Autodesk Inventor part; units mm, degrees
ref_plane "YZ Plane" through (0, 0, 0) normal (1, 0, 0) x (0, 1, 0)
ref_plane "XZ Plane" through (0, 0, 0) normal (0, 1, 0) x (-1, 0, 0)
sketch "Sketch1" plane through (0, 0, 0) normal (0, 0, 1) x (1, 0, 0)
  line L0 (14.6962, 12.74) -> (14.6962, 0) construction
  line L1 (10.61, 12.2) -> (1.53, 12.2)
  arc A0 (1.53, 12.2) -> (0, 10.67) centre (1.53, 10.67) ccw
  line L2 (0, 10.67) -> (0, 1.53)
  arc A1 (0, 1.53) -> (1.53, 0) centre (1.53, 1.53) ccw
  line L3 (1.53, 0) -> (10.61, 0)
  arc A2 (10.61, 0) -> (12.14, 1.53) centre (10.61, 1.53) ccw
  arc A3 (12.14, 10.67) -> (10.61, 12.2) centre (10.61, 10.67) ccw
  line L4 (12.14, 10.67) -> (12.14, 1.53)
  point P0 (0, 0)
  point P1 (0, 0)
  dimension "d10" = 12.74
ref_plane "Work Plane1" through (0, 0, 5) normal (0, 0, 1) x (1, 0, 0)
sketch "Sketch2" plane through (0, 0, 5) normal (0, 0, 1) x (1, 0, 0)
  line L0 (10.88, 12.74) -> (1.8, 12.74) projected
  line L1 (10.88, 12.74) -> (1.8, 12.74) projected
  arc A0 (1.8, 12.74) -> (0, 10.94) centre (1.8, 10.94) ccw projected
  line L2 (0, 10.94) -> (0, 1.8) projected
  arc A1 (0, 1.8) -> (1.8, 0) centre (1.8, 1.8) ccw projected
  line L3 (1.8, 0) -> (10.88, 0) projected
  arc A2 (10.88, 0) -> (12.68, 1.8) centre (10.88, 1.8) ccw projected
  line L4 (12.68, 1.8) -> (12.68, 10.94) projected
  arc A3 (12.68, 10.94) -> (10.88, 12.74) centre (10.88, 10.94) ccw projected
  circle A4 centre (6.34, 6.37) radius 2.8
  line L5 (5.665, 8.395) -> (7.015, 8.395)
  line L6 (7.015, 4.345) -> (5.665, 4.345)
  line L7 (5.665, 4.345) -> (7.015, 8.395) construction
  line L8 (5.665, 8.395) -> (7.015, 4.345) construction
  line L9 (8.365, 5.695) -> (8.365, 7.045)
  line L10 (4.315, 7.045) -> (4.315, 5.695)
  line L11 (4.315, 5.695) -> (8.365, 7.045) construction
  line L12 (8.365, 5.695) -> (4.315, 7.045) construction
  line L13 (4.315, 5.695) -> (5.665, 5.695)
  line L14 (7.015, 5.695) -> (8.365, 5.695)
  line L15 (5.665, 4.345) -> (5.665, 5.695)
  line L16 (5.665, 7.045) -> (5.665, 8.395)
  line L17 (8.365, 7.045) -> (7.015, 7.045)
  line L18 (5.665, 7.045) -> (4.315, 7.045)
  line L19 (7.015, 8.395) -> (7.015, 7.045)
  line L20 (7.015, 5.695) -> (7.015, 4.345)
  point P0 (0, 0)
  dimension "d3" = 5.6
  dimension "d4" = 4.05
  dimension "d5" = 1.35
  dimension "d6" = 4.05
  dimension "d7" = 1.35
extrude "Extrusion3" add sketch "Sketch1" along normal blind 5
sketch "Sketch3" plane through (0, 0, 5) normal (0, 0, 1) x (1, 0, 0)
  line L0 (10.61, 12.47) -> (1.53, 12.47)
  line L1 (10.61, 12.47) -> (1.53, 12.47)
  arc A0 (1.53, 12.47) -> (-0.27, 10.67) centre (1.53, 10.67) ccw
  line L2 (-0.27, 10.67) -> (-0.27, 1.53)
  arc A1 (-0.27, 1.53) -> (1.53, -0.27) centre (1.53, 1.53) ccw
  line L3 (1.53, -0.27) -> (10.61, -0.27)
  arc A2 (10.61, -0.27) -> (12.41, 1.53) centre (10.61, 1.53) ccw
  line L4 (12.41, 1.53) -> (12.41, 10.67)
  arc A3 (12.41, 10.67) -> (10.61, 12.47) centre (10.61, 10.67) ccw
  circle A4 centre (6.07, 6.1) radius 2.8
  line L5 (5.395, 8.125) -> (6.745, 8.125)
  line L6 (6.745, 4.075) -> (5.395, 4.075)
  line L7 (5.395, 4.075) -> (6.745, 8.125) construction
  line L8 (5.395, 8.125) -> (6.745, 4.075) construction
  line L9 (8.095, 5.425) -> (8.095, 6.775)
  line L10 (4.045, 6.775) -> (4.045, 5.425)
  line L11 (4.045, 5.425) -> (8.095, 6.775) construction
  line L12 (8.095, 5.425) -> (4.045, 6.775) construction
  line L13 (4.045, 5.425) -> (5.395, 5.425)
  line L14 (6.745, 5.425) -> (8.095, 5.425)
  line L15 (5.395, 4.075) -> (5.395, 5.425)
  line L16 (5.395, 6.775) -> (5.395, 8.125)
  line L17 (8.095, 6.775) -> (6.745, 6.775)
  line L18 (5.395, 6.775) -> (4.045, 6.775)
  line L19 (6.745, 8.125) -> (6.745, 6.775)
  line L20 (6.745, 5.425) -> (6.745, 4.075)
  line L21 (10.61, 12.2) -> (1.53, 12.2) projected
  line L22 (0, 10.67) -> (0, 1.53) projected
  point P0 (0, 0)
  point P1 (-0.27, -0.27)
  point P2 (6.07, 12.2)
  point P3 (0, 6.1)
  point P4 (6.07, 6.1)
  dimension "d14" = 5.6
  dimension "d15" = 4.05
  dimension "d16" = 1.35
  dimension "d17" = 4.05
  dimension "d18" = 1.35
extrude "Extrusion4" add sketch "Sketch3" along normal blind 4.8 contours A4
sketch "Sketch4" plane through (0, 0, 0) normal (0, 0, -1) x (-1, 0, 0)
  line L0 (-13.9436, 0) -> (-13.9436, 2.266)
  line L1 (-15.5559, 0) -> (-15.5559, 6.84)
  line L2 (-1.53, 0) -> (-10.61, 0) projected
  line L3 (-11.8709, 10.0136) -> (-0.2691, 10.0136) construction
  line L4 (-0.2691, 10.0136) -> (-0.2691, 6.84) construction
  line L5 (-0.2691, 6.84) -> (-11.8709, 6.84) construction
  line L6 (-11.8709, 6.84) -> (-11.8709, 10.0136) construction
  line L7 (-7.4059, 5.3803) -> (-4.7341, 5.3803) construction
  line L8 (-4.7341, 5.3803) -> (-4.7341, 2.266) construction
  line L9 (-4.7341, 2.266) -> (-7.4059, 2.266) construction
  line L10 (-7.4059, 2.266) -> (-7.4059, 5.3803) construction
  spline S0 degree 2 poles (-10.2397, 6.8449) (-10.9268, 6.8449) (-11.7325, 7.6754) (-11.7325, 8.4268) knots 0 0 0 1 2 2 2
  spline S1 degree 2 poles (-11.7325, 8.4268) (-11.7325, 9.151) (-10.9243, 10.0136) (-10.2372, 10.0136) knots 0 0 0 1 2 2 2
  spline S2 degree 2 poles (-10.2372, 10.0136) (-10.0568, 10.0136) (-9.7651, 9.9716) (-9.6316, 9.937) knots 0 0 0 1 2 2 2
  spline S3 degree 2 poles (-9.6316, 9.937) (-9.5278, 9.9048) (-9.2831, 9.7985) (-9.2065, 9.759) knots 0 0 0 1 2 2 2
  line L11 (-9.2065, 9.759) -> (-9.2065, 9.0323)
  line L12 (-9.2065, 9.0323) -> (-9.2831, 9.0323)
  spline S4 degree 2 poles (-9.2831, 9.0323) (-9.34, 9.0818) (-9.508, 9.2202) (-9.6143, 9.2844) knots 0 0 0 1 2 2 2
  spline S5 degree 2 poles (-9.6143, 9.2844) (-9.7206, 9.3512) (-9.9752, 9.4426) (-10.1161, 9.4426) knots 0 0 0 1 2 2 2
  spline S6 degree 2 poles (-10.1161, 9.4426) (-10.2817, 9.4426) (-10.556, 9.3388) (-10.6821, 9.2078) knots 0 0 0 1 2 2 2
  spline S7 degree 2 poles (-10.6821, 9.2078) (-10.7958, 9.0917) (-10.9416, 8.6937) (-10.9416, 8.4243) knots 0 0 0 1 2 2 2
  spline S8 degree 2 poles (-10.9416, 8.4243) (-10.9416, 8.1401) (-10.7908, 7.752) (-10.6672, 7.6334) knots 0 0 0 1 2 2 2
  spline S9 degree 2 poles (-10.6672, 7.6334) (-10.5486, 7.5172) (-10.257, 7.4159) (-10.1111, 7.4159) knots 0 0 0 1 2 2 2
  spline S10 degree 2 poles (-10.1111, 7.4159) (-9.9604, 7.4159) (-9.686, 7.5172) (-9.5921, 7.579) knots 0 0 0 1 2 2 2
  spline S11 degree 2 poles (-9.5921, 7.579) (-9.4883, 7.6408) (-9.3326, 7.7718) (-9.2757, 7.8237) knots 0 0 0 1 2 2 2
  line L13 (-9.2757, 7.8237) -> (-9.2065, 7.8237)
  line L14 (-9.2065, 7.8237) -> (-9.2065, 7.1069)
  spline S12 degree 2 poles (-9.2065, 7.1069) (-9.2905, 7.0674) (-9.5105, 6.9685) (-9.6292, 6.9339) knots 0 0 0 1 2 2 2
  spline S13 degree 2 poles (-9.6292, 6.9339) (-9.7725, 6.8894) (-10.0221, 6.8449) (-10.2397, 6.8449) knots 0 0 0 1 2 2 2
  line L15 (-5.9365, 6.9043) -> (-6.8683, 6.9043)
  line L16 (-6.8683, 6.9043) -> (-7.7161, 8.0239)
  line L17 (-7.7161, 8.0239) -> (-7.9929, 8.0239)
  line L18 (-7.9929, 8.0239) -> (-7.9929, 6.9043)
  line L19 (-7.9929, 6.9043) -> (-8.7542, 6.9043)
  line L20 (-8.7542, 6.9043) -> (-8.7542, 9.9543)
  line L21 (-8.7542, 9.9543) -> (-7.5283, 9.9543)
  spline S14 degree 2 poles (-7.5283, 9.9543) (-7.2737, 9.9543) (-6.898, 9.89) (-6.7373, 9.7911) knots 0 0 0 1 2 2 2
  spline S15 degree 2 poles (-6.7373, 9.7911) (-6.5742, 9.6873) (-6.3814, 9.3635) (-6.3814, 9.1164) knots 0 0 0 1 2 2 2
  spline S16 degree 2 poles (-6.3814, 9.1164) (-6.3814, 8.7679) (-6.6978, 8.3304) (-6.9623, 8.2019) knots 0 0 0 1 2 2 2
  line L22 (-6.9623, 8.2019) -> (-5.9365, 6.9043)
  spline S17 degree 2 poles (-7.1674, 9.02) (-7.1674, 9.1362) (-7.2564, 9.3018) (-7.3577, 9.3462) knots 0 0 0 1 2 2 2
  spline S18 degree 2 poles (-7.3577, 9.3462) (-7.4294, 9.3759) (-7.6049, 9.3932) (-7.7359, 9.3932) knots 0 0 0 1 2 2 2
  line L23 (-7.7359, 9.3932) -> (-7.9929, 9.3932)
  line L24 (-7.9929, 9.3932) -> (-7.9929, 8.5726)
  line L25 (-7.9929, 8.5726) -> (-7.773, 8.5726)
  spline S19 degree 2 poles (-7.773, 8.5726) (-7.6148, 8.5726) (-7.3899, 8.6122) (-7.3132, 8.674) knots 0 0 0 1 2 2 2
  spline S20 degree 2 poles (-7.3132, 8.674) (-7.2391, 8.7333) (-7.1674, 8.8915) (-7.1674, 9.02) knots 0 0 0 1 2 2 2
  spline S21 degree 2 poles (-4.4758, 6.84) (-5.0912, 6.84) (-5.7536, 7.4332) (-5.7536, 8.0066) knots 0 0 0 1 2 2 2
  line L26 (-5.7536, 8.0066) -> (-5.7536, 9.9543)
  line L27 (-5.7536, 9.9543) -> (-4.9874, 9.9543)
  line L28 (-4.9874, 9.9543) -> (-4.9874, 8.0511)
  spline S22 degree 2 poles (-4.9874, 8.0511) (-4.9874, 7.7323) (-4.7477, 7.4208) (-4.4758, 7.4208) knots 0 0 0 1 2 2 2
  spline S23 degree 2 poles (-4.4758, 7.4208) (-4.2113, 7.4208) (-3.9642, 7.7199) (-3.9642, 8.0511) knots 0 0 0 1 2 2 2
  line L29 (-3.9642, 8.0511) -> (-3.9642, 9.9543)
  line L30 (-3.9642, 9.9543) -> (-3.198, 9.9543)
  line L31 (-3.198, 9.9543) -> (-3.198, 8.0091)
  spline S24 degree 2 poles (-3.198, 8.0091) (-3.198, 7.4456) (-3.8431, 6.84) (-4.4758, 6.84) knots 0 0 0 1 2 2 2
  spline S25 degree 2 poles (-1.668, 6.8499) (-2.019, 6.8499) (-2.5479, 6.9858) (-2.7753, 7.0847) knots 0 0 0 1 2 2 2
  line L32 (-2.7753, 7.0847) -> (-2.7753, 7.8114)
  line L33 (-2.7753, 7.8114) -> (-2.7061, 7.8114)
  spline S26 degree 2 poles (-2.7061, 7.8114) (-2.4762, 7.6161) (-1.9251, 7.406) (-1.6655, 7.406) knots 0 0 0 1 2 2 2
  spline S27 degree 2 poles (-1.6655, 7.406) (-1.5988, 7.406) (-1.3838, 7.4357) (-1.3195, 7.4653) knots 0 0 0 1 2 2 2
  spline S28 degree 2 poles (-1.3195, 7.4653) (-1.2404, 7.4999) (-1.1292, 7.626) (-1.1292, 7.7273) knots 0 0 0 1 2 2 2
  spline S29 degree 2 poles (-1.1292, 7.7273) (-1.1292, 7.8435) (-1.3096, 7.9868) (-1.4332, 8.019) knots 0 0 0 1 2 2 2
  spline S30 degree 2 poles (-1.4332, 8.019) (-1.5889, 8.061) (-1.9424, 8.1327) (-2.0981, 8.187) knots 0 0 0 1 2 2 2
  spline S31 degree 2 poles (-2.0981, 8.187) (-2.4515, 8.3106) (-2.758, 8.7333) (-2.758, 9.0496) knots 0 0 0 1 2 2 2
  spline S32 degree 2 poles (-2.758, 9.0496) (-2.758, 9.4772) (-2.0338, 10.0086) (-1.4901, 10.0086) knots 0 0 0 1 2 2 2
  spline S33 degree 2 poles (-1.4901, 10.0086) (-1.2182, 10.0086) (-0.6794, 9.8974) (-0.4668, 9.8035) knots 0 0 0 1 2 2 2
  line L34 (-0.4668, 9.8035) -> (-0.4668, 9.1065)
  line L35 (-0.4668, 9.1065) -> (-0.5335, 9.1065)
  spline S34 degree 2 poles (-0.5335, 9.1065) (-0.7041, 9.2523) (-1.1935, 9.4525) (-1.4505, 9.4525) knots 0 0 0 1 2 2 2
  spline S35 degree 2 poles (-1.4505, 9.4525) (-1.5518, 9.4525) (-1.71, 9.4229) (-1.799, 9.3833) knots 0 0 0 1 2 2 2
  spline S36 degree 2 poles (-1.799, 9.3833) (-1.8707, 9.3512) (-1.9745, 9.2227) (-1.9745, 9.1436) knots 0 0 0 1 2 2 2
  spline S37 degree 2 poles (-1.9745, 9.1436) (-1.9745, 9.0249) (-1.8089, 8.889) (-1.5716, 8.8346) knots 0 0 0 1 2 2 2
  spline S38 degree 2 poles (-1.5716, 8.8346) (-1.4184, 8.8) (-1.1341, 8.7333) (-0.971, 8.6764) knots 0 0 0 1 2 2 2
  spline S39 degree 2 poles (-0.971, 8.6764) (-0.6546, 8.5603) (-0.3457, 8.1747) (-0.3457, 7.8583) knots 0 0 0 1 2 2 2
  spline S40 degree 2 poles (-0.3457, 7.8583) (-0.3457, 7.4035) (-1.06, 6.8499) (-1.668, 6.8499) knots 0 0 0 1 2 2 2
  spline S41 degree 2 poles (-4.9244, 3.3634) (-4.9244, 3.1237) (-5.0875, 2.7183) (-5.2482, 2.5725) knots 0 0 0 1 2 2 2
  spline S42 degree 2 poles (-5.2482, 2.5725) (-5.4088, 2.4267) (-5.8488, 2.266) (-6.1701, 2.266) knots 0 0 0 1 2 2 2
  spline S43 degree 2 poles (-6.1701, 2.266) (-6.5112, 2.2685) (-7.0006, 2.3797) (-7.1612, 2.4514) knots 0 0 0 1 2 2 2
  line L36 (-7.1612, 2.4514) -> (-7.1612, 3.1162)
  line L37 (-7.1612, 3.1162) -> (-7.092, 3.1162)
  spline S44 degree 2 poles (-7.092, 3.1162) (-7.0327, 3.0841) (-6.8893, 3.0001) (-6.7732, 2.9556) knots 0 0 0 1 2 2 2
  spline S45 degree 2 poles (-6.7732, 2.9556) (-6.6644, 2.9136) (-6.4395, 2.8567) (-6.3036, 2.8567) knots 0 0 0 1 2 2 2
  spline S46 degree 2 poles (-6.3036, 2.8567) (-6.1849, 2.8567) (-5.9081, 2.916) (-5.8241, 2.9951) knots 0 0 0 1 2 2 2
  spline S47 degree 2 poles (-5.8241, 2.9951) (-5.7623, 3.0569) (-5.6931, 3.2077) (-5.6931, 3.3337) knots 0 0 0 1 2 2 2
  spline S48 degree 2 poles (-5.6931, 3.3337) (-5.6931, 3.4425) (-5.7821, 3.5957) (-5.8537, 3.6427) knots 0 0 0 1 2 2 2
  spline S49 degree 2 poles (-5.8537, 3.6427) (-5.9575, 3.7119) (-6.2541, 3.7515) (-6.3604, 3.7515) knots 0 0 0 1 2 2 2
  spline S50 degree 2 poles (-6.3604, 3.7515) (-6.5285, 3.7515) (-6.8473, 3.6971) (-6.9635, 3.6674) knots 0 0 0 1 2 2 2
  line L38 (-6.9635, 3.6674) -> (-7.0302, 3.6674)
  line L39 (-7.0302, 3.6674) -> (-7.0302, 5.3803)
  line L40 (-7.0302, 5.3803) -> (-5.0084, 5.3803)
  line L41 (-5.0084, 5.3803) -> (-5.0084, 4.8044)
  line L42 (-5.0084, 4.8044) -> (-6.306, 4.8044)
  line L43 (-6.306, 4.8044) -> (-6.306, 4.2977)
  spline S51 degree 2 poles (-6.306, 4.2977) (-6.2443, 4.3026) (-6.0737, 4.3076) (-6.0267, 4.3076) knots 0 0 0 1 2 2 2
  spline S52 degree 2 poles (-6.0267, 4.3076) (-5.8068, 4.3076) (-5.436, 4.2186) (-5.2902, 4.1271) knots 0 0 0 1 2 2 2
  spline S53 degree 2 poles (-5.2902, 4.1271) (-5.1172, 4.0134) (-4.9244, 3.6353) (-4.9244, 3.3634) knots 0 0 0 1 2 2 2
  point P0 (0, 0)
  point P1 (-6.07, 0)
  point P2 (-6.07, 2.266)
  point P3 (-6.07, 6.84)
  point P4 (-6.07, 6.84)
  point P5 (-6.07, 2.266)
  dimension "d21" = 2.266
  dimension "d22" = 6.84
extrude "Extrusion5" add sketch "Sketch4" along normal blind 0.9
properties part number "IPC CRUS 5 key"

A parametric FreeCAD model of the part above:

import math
import FreeCAD as App
import Part
import Sketcher
from FreeCAD import Vector
Q = App.Units.Quantity

doc = App.newDocument("Part")
body = doc.addObject("PartDesign::Body", "Body")

# Sketch on XY plane
sketch1 = doc.addObject("Sketcher::SketchObject", "Sketch")
body.addObject(sketch1)
sketch1.AttachmentSupport = (doc.XY_Plane, [""])
sketch1.MapMode = "FlatFace"
sketch1.addGeometry([
    Part.ArcOfCircle(Part.Circle(Vector(10.6, 10.7, 0), Vector(0, 0, 1), 1.5), math.radians(0), math.radians(90)),  # 0
    Part.LineSegment(Vector(10.6, 12.2, 0), Vector(1.5, 12.2, 0)),  # 1
    Part.ArcOfCircle(Part.Circle(Vector(1.5, 10.7, 0), Vector(0, 0, 1), 1.5), math.radians(90), math.radians(180)),  # 2
    Part.LineSegment(Vector(0, 10.7, 0), Vector(0, 1.5, 0)),  # 3
    Part.ArcOfCircle(Part.Circle(Vector(1.5, 1.5, 0), Vector(0, 0, 1), 1.5), math.radians(180), math.radians(270)),  # 4
    Part.LineSegment(Vector(1.5, 0, 0), Vector(10.6, 0, 0)),  # 5
    Part.ArcOfCircle(Part.Circle(Vector(10.6, 1.5, 0), Vector(0, 0, 1), 1.5), math.radians(-90), math.radians(0)),  # 6
    Part.LineSegment(Vector(12.1, 1.5, 0), Vector(12.1, 10.7, 0)),  # 7
], False)
sketch1.addConstraint([
    Sketcher.Constraint("Tangent", 0, 2, 1, 1),
    Sketcher.Constraint("Tangent", 1, 2, 2, 1),
    Sketcher.Constraint("Tangent", 2, 2, 3, 1),
    Sketcher.Constraint("Tangent", 3, 2, 4, 1),
    Sketcher.Constraint("Tangent", 4, 2, 5, 1),
    Sketcher.Constraint("Tangent", 5, 2, 6, 1),
    Sketcher.Constraint("Tangent", 6, 2, 7, 1),
    Sketcher.Constraint("Tangent", 7, 2, 0, 1),
    Sketcher.Constraint("Horizontal", 1),
    Sketcher.Constraint("Vertical", 3),
    Sketcher.Constraint("Horizontal", 5),
    Sketcher.Constraint("Vertical", 7),
    Sketcher.Constraint("Equal", 0, 2),
    Sketcher.Constraint("Equal", 2, 4),
    Sketcher.Constraint("Equal", 4, 6),
    Sketcher.Constraint("PointOnObject", 2, 2, -2),
    Sketcher.Constraint("PointOnObject", 4, 2, -1),
    Sketcher.Constraint("Radius", 0, Q("1.53 mm")),
    Sketcher.Constraint("DistanceX", 1, 2, 1, 1, Q("9.08 mm")),
    Sketcher.Constraint("DistanceY", 3, 2, 3, 1, Q("9.14 mm")),
])
pad1 = doc.addObject("PartDesign::Pad", "Pad")
body.addObject(pad1)
pad1.Profile = sketch1
pad1.Length = 5

# Sketch on XY plane
sketch2 = doc.addObject("Sketcher::SketchObject", "Sketch001")
body.addObject(sketch2)
sketch2.AttachmentSupport = (doc.XY_Plane, [""])
sketch2.MapMode = "FlatFace"
sketch2.AttachmentOffset = App.Placement(Vector(0, 0, 5), App.Rotation())
sketch2.addGeometry([
    Part.Circle(Vector(6.1, 6.1, 0), Vector(0, 0, 1), 2.8),  # 0
    Part.LineSegment(Vector(5.4, 6.8, 0), Vector(5.4, 8.1, 0)),  # 1
    Part.LineSegment(Vector(5.4, 8.1, 0), Vector(6.7, 8.1, 0)),  # 2
    Part.LineSegment(Vector(6.7, 8.1, 0), Vector(6.7, 6.8, 0)),  # 3
    Part.LineSegment(Vector(6.7, 6.8, 0), Vector(8.1, 6.8, 0)),  # 4
    Part.LineSegment(Vector(8.1, 6.8, 0), Vector(8.1, 5.4, 0)),  # 5
    Part.LineSegment(Vector(8.1, 5.4, 0), Vector(6.7, 5.4, 0)),  # 6
    Part.LineSegment(Vector(6.7, 5.4, 0), Vector(6.7, 4.1, 0)),  # 7
    Part.LineSegment(Vector(6.7, 4.1, 0), Vector(5.4, 4.1, 0)),  # 8
    Part.LineSegment(Vector(5.4, 4.1, 0), Vector(5.4, 5.4, 0)),  # 9
    Part.LineSegment(Vector(5.4, 5.4, 0), Vector(4, 5.4, 0)),  # 10
    Part.LineSegment(Vector(4, 5.4, 0), Vector(4, 6.8, 0)),  # 11
    Part.LineSegment(Vector(4, 6.8, 0), Vector(5.4, 6.8, 0)),  # 12
], False)
sketch2.addConstraint([
    Sketcher.Constraint("Coincident", 1, 2, 2, 1),
    Sketcher.Constraint("Coincident", 2, 2, 3, 1),
    Sketcher.Constraint("Coincident", 3, 2, 4, 1),
    Sketcher.Constraint("Coincident", 4, 2, 5, 1),
    Sketcher.Constraint("Coincident", 5, 2, 6, 1),
    Sketcher.Constraint("Coincident", 6, 2, 7, 1),
    Sketcher.Constraint("Coincident", 7, 2, 8, 1),
    Sketcher.Constraint("Coincident", 8, 2, 9, 1),
    Sketcher.Constraint("Coincident", 9, 2, 10, 1),
    Sketcher.Constraint("Coincident", 10, 2, 11, 1),
    Sketcher.Constraint("Coincident", 11, 2, 12, 1),
    Sketcher.Constraint("Coincident", 12, 2, 1, 1),
    Sketcher.Constraint("Vertical", 1),
    Sketcher.Constraint("Horizontal", 2),
    Sketcher.Constraint("Vertical", 3),
    Sketcher.Constraint("Horizontal", 4),
    Sketcher.Constraint("Vertical", 5),
    Sketcher.Constraint("Horizontal", 6),
    Sketcher.Constraint("Vertical", 7),
    Sketcher.Constraint("Horizontal", 8),
    Sketcher.Constraint("Vertical", 9),
    Sketcher.Constraint("Horizontal", 10),
    Sketcher.Constraint("Vertical", 11),
    Sketcher.Constraint("Horizontal", 12),
    Sketcher.Constraint("Horizontal", 6, 2, 9, 2),
    Sketcher.Constraint("Horizontal", 4, 2, 11, 2),
    Sketcher.Constraint("Vertical", 3, 2, 6, 2),
    Sketcher.Constraint("Vertical", 1, 2, 8, 2),
    Sketcher.Constraint("Equal", 2, 4),
    Sketcher.Constraint("Equal", 8, 10),
    Sketcher.Constraint("Equal", 12, 1),
    Sketcher.Constraint("Equal", 3, 5),
    Sketcher.Constraint("Equal", 5, 7),
    Sketcher.Constraint("Diameter", 0, Q("5.6 mm")),
    Sketcher.Constraint("DistanceX", 2, 1, 2, 2, Q("1.35 mm")),
    Sketcher.Constraint("DistanceY", -1, 1, 0, 3, Q("6.1 mm")),
    Sketcher.Constraint("DistanceX", -1, 1, 0, 3, Q("6.07 mm")),
    Sketcher.Constraint("DistanceX", -1, 1, 1, 2, Q("5.395 mm")),
    Sketcher.Constraint("DistanceY", -1, 1, 1, 2, Q("8.125 mm")),
])
pad2 = doc.addObject("PartDesign::Pad", "Pad001")
body.addObject(pad2)
pad2.Profile = sketch2
pad2.Length = 4.8

# Sketch on XY plane
sketch3 = doc.addObject("Sketcher::SketchObject", "Sketch002")
body.addObject(sketch3)
sketch3.AttachmentSupport = (doc.XY_Plane, [""])
sketch3.MapMode = "FlatFace"
sketch3.addGeometry([
    Part.BSplineCurve([Vector(10.2397, 6.8449, 0), Vector(10.9268, 6.8449, 0), Vector(11.7325, 7.6754, 0), Vector(11.7325, 8.4268, 0)], [3, 1, 3], [0, 1, 2], False, 2, [1, 1, 1, 1], False),  # 0
    Part.BSplineCurve([Vector(9.6292, 6.9339, 0), Vector(9.7725, 6.8894, 0), Vector(10.0221, 6.8449, 0), Vector(10.2397, 6.8449, 0)], [3, 1, 3], [0, 1, 2], False, 2, [1, 1, 1, 1], False),  # 1
    Part.BSplineCurve([Vector(9.2065, 7.1069, 0), Vector(9.2905, 7.0674, 0), Vector(9.5105, 6.9685, 0), Vector(9.6292, 6.9339, 0)], [3, 1, 3], [0, 1, 2], False, 2, [1, 1, 1, 1], False),  # 2
    Part.LineSegment(Vector(9.2065, 7.1069, 0), Vector(9.2065, 7.8237, 0)),  # 3
    Part.LineSegment(Vector(9.2065, 7.8237, 0), Vector(9.2757, 7.8237, 0)),  # 4
    Part.BSplineCurve([Vector(9.5921, 7.579, 0), Vector(9.4883, 7.6408, 0), Vector(9.3326, 7.7718, 0), Vector(9.2757, 7.8237, 0)], [3, 1, 3], [0, 1, 2], False, 2, [1, 1, 1, 1], False),  # 5
    Part.BSplineCurve([Vector(10.1111, 7.4159, 0), Vector(9.9604, 7.4159, 0), Vector(9.686, 7.5172, 0), Vector(9.5921, 7.579, 0)], [3, 1, 3], [0, 1, 2], False, 2, [1, 1, 1, 1], False),  # 6
    Part.BSplineCurve([Vector(10.6672, 7.6334, 0), Vector(10.5486, 7.5172, 0), Vector(10.257, 7.4159, 0), Vector(10.1111, 7.4159, 0)], [3, 1, 3], [0, 1, 2], False, 2, [1, 1, 1, 1], False),  # 7
    Part.BSplineCurve([Vector(10.9416, 8.4243, 0), Vector(10.9416, 8.1401, 0), Vector(10.7908, 7.752, 0), Vector(10.6672, 7.6334, 0)], [3, 1, 3], [0, 1, 2], False, 2, [1, 1, 1, 1], False),  # 8
    Part.BSplineCurve([Vector(10.6821, 9.2078, 0), Vector(10.7958, 9.0917, 0), Vector(10.9416, 8.6937, 0), Vector(10.9416, 8.4243, 0)], [3, 1, 3], [0, 1, 2], False, 2, [1, 1, 1, 1], False),  # 9
    Part.BSplineCurve([Vector(10.1161, 9.4426, 0), Vector(10.2817, 9.4426, 0), Vector(10.556, 9.3388, 0), Vector(10.6821, 9.2078, 0)], [3, 1, 3], [0, 1, 2], False, 2, [1, 1, 1, 1], False),  # 10
    Part.BSplineCurve([Vector(9.6143, 9.2844, 0), Vector(9.7206, 9.3512, 0), Vector(9.9752, 9.4426, 0), Vector(10.1161, 9.4426, 0)], [3, 1, 3], [0, 1, 2], False, 2, [1, 1, 1, 1], False),  # 11
    Part.BSplineCurve([Vector(9.2831, 9.0323, 0), Vector(9.34, 9.0818, 0), Vector(9.508, 9.2202, 0), Vector(9.6143, 9.2844, 0)], [3, 1, 3], [0, 1, 2], False, 2, [1, 1, 1, 1], False),  # 12
    Part.LineSegment(Vector(9.2831, 9.0323, 0), Vector(9.2065, 9.0323, 0)),  # 13
    Part.LineSegment(Vector(9.2065, 9.0323, 0), Vector(9.2065, 9.759, 0)),  # 14
    Part.BSplineCurve([Vector(9.6316, 9.937, 0), Vector(9.5278, 9.9048, 0), Vector(9.2831, 9.7985, 0), Vector(9.2065, 9.759, 0)], [3, 1, 3], [0, 1, 2], False, 2, [1, 1, 1, 1], False),  # 15
    Part.BSplineCurve([Vector(10.2372, 10.0136, 0), Vector(10.0568, 10.0136, 0), Vector(9.7651, 9.9716, 0), Vector(9.6316, 9.937, 0)], [3, 1, 3], [0, 1, 2], False, 2, [1, 1, 1, 1], False),  # 16
    Part.BSplineCurve([Vector(11.7325, 8.4268, 0), Vector(11.7325, 9.151, 0), Vector(10.9243, 10.0136, 0), Vector(10.2372, 10.0136, 0)], [3, 1, 3], [0, 1, 2], False, 2, [1, 1, 1, 1], False),  # 17
    Part.LineSegment(Vector(6.8683, 6.9043, 0), Vector(5.9365, 6.9043, 0)),  # 18
    Part.LineSegment(Vector(5.9365, 6.9043, 0), Vector(6.9623, 8.2019, 0)),  # 19
    Part.BSplineCurve([Vector(6.3814, 9.1164, 0), Vector(6.3814, 8.7679, 0), Vector(6.6978, 8.3304, 0), Vector(6.9623, 8.2019, 0)], [3, 1, 3], [0, 1, 2], False, 2, [1, 1, 1, 1], False),  # 20
    Part.BSplineCurve([Vector(6.7373, 9.7911, 0), Vector(6.5742, 9.6873, 0), Vector(6.3814, 9.3635, 0), Vector(6.3814, 9.1164, 0)], [3, 1, 3], [0, 1, 2], False, 2, [1, 1, 1, 1], False),  # 21
    Part.BSplineCurve([Vector(7.5283, 9.9543, 0), Vector(7.2737, 9.9543, 0), Vector(6.898, 9.89, 0), Vector(6.7373, 9.7911, 0)], [3, 1, 3], [0, 1, 2], False, 2, [1, 1, 1, 1], False),  # 22
    Part.LineSegment(Vector(7.5283, 9.9543, 0), Vector(8.7542, 9.9543, 0)),  # 23
    Part.LineSegment(Vector(8.7542, 9.9543, 0), Vector(8.7542, 6.9043, 0)),  # 24
    Part.LineSegment(Vector(8.7542, 6.9043, 0), Vector(7.9929, 6.9043, 0)),  # 25
    Part.LineSegment(Vector(7.9929, 6.9043, 0), Vector(7.9929, 8.0239, 0)),  # 26
    Part.LineSegment(Vector(7.9929, 8.0239, 0), Vector(7.7161, 8.0239, 0)),  # 27
    Part.LineSegment(Vector(7.7161, 8.0239, 0), Vector(6.8683, 6.9043, 0)),  # 28
    Part.BSplineCurve([Vector(7.1674, 9.02, 0), Vector(7.1674, 9.1362, 0), Vector(7.2564, 9.3018, 0), Vector(7.3577, 9.3462, 0)], [3, 1, 3], [0, 1, 2], False, 2, [1, 1, 1, 1], False),  # 29
    Part.BSplineCurve([Vector(7.3132, 8.674, 0), Vector(7.2391, 8.7333, 0), Vector(7.1674, 8.8915, 0), Vector(7.1674, 9.02, 0)], [3, 1, 3], [0, 1, 2], False, 2, [1, 1, 1, 1], False),  # 30
    Part.BSplineCurve([Vector(7.773, 8.5726, 0), Vector(7.6148, 8.5726, 0), Vector(7.3899, 8.6122, 0), Vector(7.3132, 8.674, 0)], [3, 1, 3], [0, 1, 2], False, 2, [1, 1, 1, 1], False),  # 31
    Part.LineSegment(Vector(7.773, 8.5726, 0), Vector(7.9929, 8.5726, 0)),  # 32
    Part.LineSegment(Vector(7.9929, 8.5726, 0), Vector(7.9929, 9.3932, 0)),  # 33
    Part.LineSegment(Vector(7.9929, 9.3932, 0), Vector(7.7359, 9.3932, 0)),  # 34
    Part.BSplineCurve([Vector(7.3577, 9.3462, 0), Vector(7.4294, 9.3759, 0), Vector(7.6049, 9.3932, 0), Vector(7.7359, 9.3932, 0)], [3, 1, 3], [0, 1, 2], False, 2, [1, 1, 1, 1], False),  # 35
    Part.BSplineCurve([Vector(4.4758, 6.84, 0), Vector(5.0912, 6.84, 0), Vector(5.7536, 7.4332, 0), Vector(5.7536, 8.0066, 0)], [3, 1, 3], [0, 1, 2], False, 2, [1, 1, 1, 1], False),  # 36
    Part.BSplineCurve([Vector(3.198, 8.0091, 0), Vector(3.198, 7.4456, 0), Vector(3.8431, 6.84, 0), Vector(4.4758, 6.84, 0)], [3, 1, 3], [0, 1, 2], False, 2, [1, 1, 1, 1], False),  # 37
    Part.LineSegment(Vector(3.198, 8.0091, 0), Vector(3.198, 9.9543, 0)),  # 38
    Part.LineSegment(Vector(3.198, 9.9543, 0), Vector(3.9642, 9.9543, 0)),  # 39
    Part.LineSegment(Vector(3.9642, 9.9543, 0), Vector(3.9642, 8.0511, 0)),  # 40
    Part.BSplineCurve([Vector(4.4758, 7.4208, 0), Vector(4.2113, 7.4208, 0), Vector(3.9642, 7.7199, 0), Vector(3.9642, 8.0511, 0)], [3, 1, 3], [0, 1, 2], False, 2, [1, 1, 1, 1], False),  # 41
    Part.BSplineCurve([Vector(4.9874, 8.0511, 0), Vector(4.9874, 7.7323, 0), Vector(4.7477, 7.4208, 0), Vector(4.4758, 7.4208, 0)], [3, 1, 3], [0, 1, 2], False, 2, [1, 1, 1, 1], False),  # 42
    Part.LineSegment(Vector(4.9874, 8.0511, 0), Vector(4.9874, 9.9543, 0)),  # 43
    Part.LineSegment(Vector(4.9874, 9.9543, 0), Vector(5.7536, 9.9543, 0)),  # 44
    Part.LineSegment(Vector(5.7536, 9.9543, 0), Vector(5.7536, 8.0066, 0)),  # 45
    Part.BSplineCurve([Vector(1.668, 6.8499, 0), Vector(2.019, 6.8499, 0), Vector(2.5479, 6.9858, 0), Vector(2.7753, 7.0847, 0)], [3, 1, 3], [0, 1, 2], False, 2, [1, 1, 1, 1], False),  # 46
    Part.BSplineCurve([Vector(0.3457, 7.8583, 0), Vector(0.3457, 7.4035, 0), Vector(1.06, 6.8499, 0), Vector(1.668, 6.8499, 0)], [3, 1, 3], [0, 1, 2], False, 2, [1, 1, 1, 1], False),  # 47
    Part.BSplineCurve([Vector(0.971, 8.6764, 0), Vector(0.6546, 8.5603, 0), Vector(0.3457, 8.1747, 0), Vector(0.3457, 7.8583, 0)], [3, 1, 3], [0, 1, 2], False, 2, [1, 1, 1, 1], False),  # 48
    Part.BSplineCurve([Vector(1.5716, 8.8346, 0), Vector(1.4184, 8.8, 0), Vector(1.1341, 8.7333, 0), Vector(0.971, 8.6764, 0)], [3, 1, 3], [0, 1, 2], False, 2, [1, 1, 1, 1], False),  # 49
    Part.BSplineCurve([Vector(1.9745, 9.1436, 0), Vector(1.9745, 9.0249, 0), Vector(1.8089, 8.889, 0), Vector(1.5716, 8.8346, 0)], [3, 1, 3], [0, 1, 2], False, 2, [1, 1, 1, 1], False),  # 50
    Part.BSplineCurve([Vector(1.799, 9.3833, 0), Vector(1.8707, 9.3512, 0), Vector(1.9745, 9.2227, 0), Vector(1.9745, 9.1436, 0)], [3, 1, 3], [0, 1, 2], False, 2, [1, 1, 1, 1], False),  # 51
    Part.BSplineCurve([Vector(1.4505, 9.4525, 0), Vector(1.5518, 9.4525, 0), Vector(1.71, 9.4229, 0), Vector(1.799, 9.3833, 0)], [3, 1, 3], [0, 1, 2], False, 2, [1, 1, 1, 1], False),  # 52
    Part.BSplineCurve([Vector(0.5335, 9.1065, 0), Vector(0.7041, 9.2523, 0), Vector(1.1935, 9.4525, 0), Vector(1.4505, 9.4525, 0)], [3, 1, 3], [0, 1, 2], False, 2, [1, 1, 1, 1], False),  # 53
    Part.LineSegment(Vector(0.5335, 9.1065, 0), Vector(0.4668, 9.1065, 0)),  # 54
    Part.LineSegment(Vector(0.4668, 9.1065, 0), Vector(0.4668, 9.8035, 0)),  # 55
    Part.BSplineCurve([Vector(1.4901, 10.0086, 0), Vector(1.2182, 10.0086, 0), Vector(0.6794, 9.8974, 0), Vector(0.4668, 9.8035, 0)], [3, 1, 3], [0, 1, 2], False, 2, [1, 1, 1, 1], False),  # 56
    Part.BSplineCurve([Vector(2.758, 9.0496, 0), Vector(2.758, 9.4772, 0), Vector(2.0338, 10.0086, 0), Vector(1.4901, 10.0086, 0)], [3, 1, 3], [0, 1, 2], False, 2, [1, 1, 1, 1], False),  # 57
    Part.BSplineCurve([Vector(2.0981, 8.187, 0), Vector(2.4515, 8.3106, 0), Vector(2.758, 8.7333, 0), Vector(2.758, 9.0496, 0)], [3, 1, 3], [0, 1, 2], False, 2, [1, 1, 1, 1], False),  # 58
    Part.BSplineCurve([Vector(1.4332, 8.019, 0), Vector(1.5889, 8.061, 0), Vector(1.9424, 8.1327, 0), Vector(2.0981, 8.187, 0)], [3, 1, 3], [0, 1, 2], False, 2, [1, 1, 1, 1], False),  # 59
    Part.BSplineCurve([Vector(1.1292, 7.7273, 0), Vector(1.1292, 7.8435, 0), Vector(1.3096, 7.9868, 0), Vector(1.4332, 8.019, 0)], [3, 1, 3], [0, 1, 2], False, 2, [1, 1, 1, 1], False),  # 60
    Part.BSplineCurve([Vector(1.3195, 7.4653, 0), Vector(1.2404, 7.4999, 0), Vector(1.1292, 7.626, 0), Vector(1.1292, 7.7273, 0)], [3, 1, 3], [0, 1, 2], False, 2, [1, 1, 1, 1], False),  # 61
    Part.BSplineCurve([Vector(1.6655, 7.406, 0), Vector(1.5988, 7.406, 0), Vector(1.3838, 7.4357, 0), Vector(1.3195, 7.4653, 0)], [3, 1, 3], [0, 1, 2], False, 2, [1, 1, 1, 1], False),  # 62
    Part.BSplineCurve([Vector(2.7061, 7.8114, 0), Vector(2.4762, 7.6161, 0), Vector(1.9251, 7.406, 0), Vector(1.6655, 7.406, 0)], [3, 1, 3], [0, 1, 2], False, 2, [1, 1, 1, 1], False),  # 63
    Part.LineSegment(Vector(2.7061, 7.8114, 0), Vector(2.7753, 7.8114, 0)),  # 64
    Part.LineSegment(Vector(2.7753, 7.8114, 0), Vector(2.7753, 7.0847, 0)),  # 65
    Part.BSplineCurve([Vector(4.9244, 3.3634, 0), Vector(4.9244, 3.1237, 0), Vector(5.0875, 2.7183, 0), Vector(5.2482, 2.5725, 0)], [3, 1, 3], [0, 1, 2], False, 2, [1, 1, 1, 1], False),  # 66
    Part.BSplineCurve([Vector(5.2902, 4.1271, 0), Vector(5.1172, 4.0134, 0), Vector(4.9244, 3.6353, 0), Vector(4.9244, 3.3634, 0)], [3, 1, 3], [0, 1, 2], False, 2, [1, 1, 1, 1], False),  # 67
    Part.BSplineCurve([Vector(6.0267, 4.3076, 0), Vector(5.8068, 4.3076, 0), Vector(5.436, 4.2186, 0), Vector(5.2902, 4.1271, 0)], [3, 1, 3], [0, 1, 2], False, 2, [1, 1, 1, 1], False),  # 68
    Part.BSplineCurve([Vector(6.306, 4.2977, 0), Vector(6.2443, 4.3026, 0), Vector(6.0737, 4.3076, 0), Vector(6.0267, 4.3076, 0)], [3, 1, 3], [0, 1, 2], False, 2, [1, 1, 1, 1], False),  # 69
    Part.LineSegment(Vector(6.306, 4.2977, 0), Vector(6.306, 4.8044, 0)),  # 70
    Part.LineSegment(Vector(6.306, 4.8044, 0), Vector(5.0084, 4.8044, 0)),  # 71
    Part.LineSegment(Vector(5.0084, 4.8044, 0), Vector(5.0084, 5.3803, 0)),  # 72
    Part.LineSegment(Vector(5.0084, 5.3803, 0), Vector(7.0302, 5.3803, 0)),  # 73
    Part.LineSegment(Vector(7.0302, 5.3803, 0), Vector(7.0302, 3.6674, 0)),  # 74
    Part.LineSegment(Vector(7.0302, 3.6674, 0), Vector(6.9635, 3.6674, 0)),  # 75
    Part.BSplineCurve([Vector(6.3604, 3.7515, 0), Vector(6.5285, 3.7515, 0), Vector(6.8473, 3.6971, 0), Vector(6.9635, 3.6674, 0)], [3, 1, 3], [0, 1, 2], False, 2, [1, 1, 1, 1], False),  # 76
    Part.BSplineCurve([Vector(5.8537, 3.6427, 0), Vector(5.9575, 3.7119, 0), Vector(6.2541, 3.7515, 0), Vector(6.3604, 3.7515, 0)], [3, 1, 3], [0, 1, 2], False, 2, [1, 1, 1, 1], False),  # 77
    Part.BSplineCurve([Vector(5.6931, 3.3337, 0), Vector(5.6931, 3.4425, 0), Vector(5.7821, 3.5957, 0), Vector(5.8537, 3.6427, 0)], [3, 1, 3], [0, 1, 2], False, 2, [1, 1, 1, 1], False),  # 78
    Part.BSplineCurve([Vector(5.8241, 2.9951, 0), Vector(5.7623, 3.0569, 0), Vector(5.6931, 3.2077, 0), Vector(5.6931, 3.3337, 0)], [3, 1, 3], [0, 1, 2], False, 2, [1, 1, 1, 1], False),  # 79
    Part.BSplineCurve([Vector(6.3036, 2.8567, 0), Vector(6.1849, 2.8567, 0), Vector(5.9081, 2.916, 0), Vector(5.8241, 2.9951, 0)], [3, 1, 3], [0, 1, 2], False, 2, [1, 1, 1, 1], False),  # 80
    Part.BSplineCurve([Vector(6.7732, 2.9556, 0), Vector(6.6644, 2.9136, 0), Vector(6.4395, 2.8567, 0), Vector(6.3036, 2.8567, 0)], [3, 1, 3], [0, 1, 2], False, 2, [1, 1, 1, 1], False),  # 81
    Part.BSplineCurve([Vector(7.092, 3.1162, 0), Vector(7.0327, 3.0841, 0), Vector(6.8893, 3.0001, 0), Vector(6.7732, 2.9556, 0)], [3, 1, 3], [0, 1, 2], False, 2, [1, 1, 1, 1], False),  # 82
    Part.LineSegment(Vector(7.092, 3.1162, 0), Vector(7.1612, 3.1162, 0)),  # 83
    Part.LineSegment(Vector(7.1612, 3.1162, 0), Vector(7.1612, 2.4514, 0)),  # 84
    Part.BSplineCurve([Vector(6.1701, 2.266, 0), Vector(6.5112, 2.2685, 0), Vector(7.0006, 2.3797, 0), Vector(7.1612, 2.4514, 0)], [3, 1, 3], [0, 1, 2], False, 2, [1, 1, 1, 1], False),  # 85
    Part.BSplineCurve([Vector(5.2482, 2.5725, 0), Vector(5.4088, 2.4267, 0), Vector(5.8488, 2.266, 0), Vector(6.1701, 2.266, 0)], [3, 1, 3], [0, 1, 2], False, 2, [1, 1, 1, 1], False),  # 86
], False)
sketch3.addConstraint([
    Sketcher.Constraint("Block", 0),
    Sketcher.Constraint("Block", 1),
    Sketcher.Constraint("Block", 2),
    Sketcher.Constraint("Block", 5),
    Sketcher.Constraint("Block", 6),
    Sketcher.Constraint("Block", 7),
    Sketcher.Constraint("Block", 8),
    Sketcher.Constraint("Block", 9),
    Sketcher.Constraint("Block", 10),
    Sketcher.Constraint("Block", 11),
    Sketcher.Constraint("Block", 12),
    Sketcher.Constraint("Block", 15),
    Sketcher.Constraint("Block", 16),
    Sketcher.Constraint("Block", 17),
    Sketcher.Constraint("Block", 20),
    Sketcher.Constraint("Block", 21),
    Sketcher.Constraint("Block", 22),
    Sketcher.Constraint("Block", 29),
    Sketcher.Constraint("Block", 30),
    Sketcher.Constraint("Block", 31),
    Sketcher.Constraint("Block", 35),
    Sketcher.Constraint("Block", 36),
    Sketcher.Constraint("Block", 37),
    Sketcher.Constraint("Block", 41),
    Sketcher.Constraint("Block", 42),
    Sketcher.Constraint("Block", 46),
    Sketcher.Constraint("Block", 47),
    Sketcher.Constraint("Block", 48),
    Sketcher.Constraint("Block", 49),
    Sketcher.Constraint("Block", 50),
    Sketcher.Constraint("Block", 51),
    Sketcher.Constraint("Block", 52),
    Sketcher.Constraint("Block", 53),
    Sketcher.Constraint("Block", 56),
    Sketcher.Constraint("Block", 57),
    Sketcher.Constraint("Block", 58),
    Sketcher.Constraint("Block", 59),
    Sketcher.Constraint("Block", 60),
    Sketcher.Constraint("Block", 61),
    Sketcher.Constraint("Block", 62),
    Sketcher.Constraint("Block", 63),
    Sketcher.Constraint("Block", 66),
    Sketcher.Constraint("Block", 67),
    Sketcher.Constraint("Block", 68),
    Sketcher.Constraint("Block", 69),
    Sketcher.Constraint("Block", 76),
    Sketcher.Constraint("Block", 77),
    Sketcher.Constraint("Block", 78),
    Sketcher.Constraint("Block", 79),
    Sketcher.Constraint("Block", 80),
    Sketcher.Constraint("Block", 81),
    Sketcher.Constraint("Block", 82),
    Sketcher.Constraint("Block", 85),
    Sketcher.Constraint("Block", 86),
    Sketcher.Constraint("Coincident", 2, 1, 3, 1),
    Sketcher.Constraint("Coincident", 3, 2, 4, 1),
    Sketcher.Constraint("Coincident", 4, 2, 5, 2),
    Sketcher.Constraint("Coincident", 12, 1, 13, 1),
    Sketcher.Constraint("Coincident", 13, 2, 14, 1),
    Sketcher.Constraint("Coincident", 14, 2, 15, 2),
    Sketcher.Constraint("Coincident", 18, 2, 19, 1),
    Sketcher.Constraint("Coincident", 19, 2, 20, 2),
    Sketcher.Constraint("Coincident", 22, 1, 23, 1),
    Sketcher.Constraint("Coincident", 23, 2, 24, 1),
    Sketcher.Constraint("Coincident", 24, 2, 25, 1),
    Sketcher.Constraint("Coincident", 25, 2, 26, 1),
    Sketcher.Constraint("Coincident", 26, 2, 27, 1),
    Sketcher.Constraint("Coincident", 27, 2, 28, 1),
    Sketcher.Constraint("Coincident", 28, 2, 18, 1),
    Sketcher.Constraint("Coincident", 31, 1, 32, 1),
    Sketcher.Constraint("Coincident", 32, 2, 33, 1),
    Sketcher.Constraint("Coincident", 33, 2, 34, 1),
    Sketcher.Constraint("Coincident", 34, 2, 35, 2),
    Sketcher.Constraint("Coincident", 37, 1, 38, 1),
    Sketcher.Constraint("Coincident", 38, 2, 39, 1),
    Sketcher.Constraint("Coincident", 39, 2, 40, 1),
    Sketcher.Constraint("Coincident", 40, 2, 41, 2),
    Sketcher.Constraint("Coincident", 42, 1, 43, 1),
    Sketcher.Constraint("Coincident", 43, 2, 44, 1),
    Sketcher.Constraint("Coincident", 44, 2, 45, 1),
    Sketcher.Constraint("Coincident", 45, 2, 36, 2),
    Sketcher.Constraint("Coincident", 53, 1, 54, 1),
    Sketcher.Constraint("Coincident", 54, 2, 55, 1),
    Sketcher.Constraint("Coincident", 55, 2, 56, 2),
    Sketcher.Constraint("Coincident", 63, 1, 64, 1),
    Sketcher.Constraint("Coincident", 64, 2, 65, 1),
    Sketcher.Constraint("Coincident", 65, 2, 46, 2),
    Sketcher.Constraint("Coincident", 69, 1, 70, 1),
    Sketcher.Constraint("Coincident", 70, 2, 71, 1),
    Sketcher.Constraint("Coincident", 71, 2, 72, 1),
    Sketcher.Constraint("Coincident", 72, 2, 73, 1),
    Sketcher.Constraint("Coincident", 73, 2, 74, 1),
    Sketcher.Constraint("Coincident", 74, 2, 75, 1),
    Sketcher.Constraint("Coincident", 75, 2, 76, 2),
    Sketcher.Constraint("Coincident", 82, 1, 83, 1),
    Sketcher.Constraint("Coincident", 83, 2, 84, 1),
    Sketcher.Constraint("Coincident", 84, 2, 85, 2),
    Sketcher.Constraint("Vertical", 3),
    Sketcher.Constraint("Horizontal", 4),
    Sketcher.Constraint("Horizontal", 13),
    Sketcher.Constraint("Vertical", 14),
    Sketcher.Constraint("Horizontal", 18),
    Sketcher.Constraint("Horizontal", 23),
    Sketcher.Constraint("Vertical", 24),
    Sketcher.Constraint("Horizontal", 25),
    Sketcher.Constraint("Vertical", 26),
    Sketcher.Constraint("Horizontal", 27),
    Sketcher.Constraint("Horizontal", 32),
    Sketcher.Constraint("Vertical", 33),
    Sketcher.Constraint("Horizontal", 34),
    Sketcher.Constraint("Vertical", 38),
    Sketcher.Constraint("Horizontal", 39),
    Sketcher.Constraint("Vertical", 40),
    Sketcher.Constraint("Vertical", 43),
    Sketcher.Constraint("Horizontal", 44),
    Sketcher.Constraint("Vertical", 45),
    Sketcher.Constraint("Horizontal", 54),
    Sketcher.Constraint("Vertical", 55),
    Sketcher.Constraint("Horizontal", 64),
    Sketcher.Constraint("Vertical", 65),
    Sketcher.Constraint("Vertical", 70),
    Sketcher.Constraint("Horizontal", 71),
    Sketcher.Constraint("Vertical", 72),
    Sketcher.Constraint("Horizontal", 73),
    Sketcher.Constraint("Vertical", 74),
    Sketcher.Constraint("Horizontal", 75),
    Sketcher.Constraint("Horizontal", 83),
    Sketcher.Constraint("Vertical", 84),
    Sketcher.Constraint("DistanceX", 32, 1, 32, 2, Q("0.22 mm")),
    Sketcher.Constraint("DistanceY", 24, 2, 24, 1, Q("3.05 mm")),
    Sketcher.Constraint("DistanceY", 70, 2, 18, 2, Q("2.1 mm")),
    Sketcher.Constraint("DistanceY", 70, 2, 25, 2, Q("2.1 mm")),
    Sketcher.Constraint("DistanceX", 23, 1, 23, 2, Q("1.226 mm")),
    Sketcher.Constraint("DistanceY", 72, 1, 72, 2, Q("0.576 mm")),
    Sketcher.Constraint("DistanceX", 18, 2, 3, 2, Q("3.27 mm")),
    Sketcher.Constraint("DistanceY", 18, 2, 38, 2, Q("3.05 mm")),
    Sketcher.Constraint("DistanceX", 71, 2, 28, 2, Q("1.86 mm")),
    Sketcher.Constraint("DistanceX", 18, 2, 18, 1, Q("0.9318 mm")),
    Sketcher.Constraint("DistanceX", 25, 2, 25, 1, Q("0.7613 mm")),
    Sketcher.Constraint("DistanceX", 27, 2, 27, 1, Q("0.2768 mm")),
    Sketcher.Constraint("DistanceX", 73, 1, 73, 2, Q("2.0218 mm")),
    Sketcher.Constraint("DistanceY", 26, 1, 26, 2, Q("1.1196 mm")),
    Sketcher.Constraint("DistanceY", 43, 1, 43, 2, Q("1.9032 mm")),
])
pad3 = doc.addObject("PartDesign::Pad", "Pad002")
body.addObject(pad3)
pad3.Profile = sketch3
pad3.Length = 0.9
pad3.Reversed = True

doc.recompute()
